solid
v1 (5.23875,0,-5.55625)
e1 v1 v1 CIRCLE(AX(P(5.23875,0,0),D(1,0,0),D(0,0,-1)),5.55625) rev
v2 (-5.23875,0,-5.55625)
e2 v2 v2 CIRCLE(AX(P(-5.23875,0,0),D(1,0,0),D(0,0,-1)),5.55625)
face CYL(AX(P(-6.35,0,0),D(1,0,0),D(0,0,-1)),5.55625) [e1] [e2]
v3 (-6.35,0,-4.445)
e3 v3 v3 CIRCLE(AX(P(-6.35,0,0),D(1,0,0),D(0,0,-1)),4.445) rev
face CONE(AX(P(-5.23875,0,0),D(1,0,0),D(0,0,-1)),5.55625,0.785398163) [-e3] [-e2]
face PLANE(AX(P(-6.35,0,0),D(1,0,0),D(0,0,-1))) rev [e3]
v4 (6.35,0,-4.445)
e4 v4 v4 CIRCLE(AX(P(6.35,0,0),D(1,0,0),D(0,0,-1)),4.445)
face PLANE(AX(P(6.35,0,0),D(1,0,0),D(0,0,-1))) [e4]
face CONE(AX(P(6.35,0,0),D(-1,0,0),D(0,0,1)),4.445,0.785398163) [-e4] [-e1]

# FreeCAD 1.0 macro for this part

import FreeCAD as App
import Part
import Sketcher

V = App.Vector
Q = App.Units.Quantity


def edges_at(feature, points):
    """Names of the edges that pass closest to the given points."""
    edges = feature.Shape.Edges
    near = lambda p: min(range(len(edges)), key=lambda i: edges[i].distToShape(Part.Vertex(*p))[0])
    return sorted({f"Edge{near(p) + 1}" for p in points})

doc = App.newDocument("Part")
body = doc.addObject("PartDesign::Body", "Body")

sketch1 = doc.addObject("Sketcher::SketchObject", "Sketch")
body.addObject(sketch1)
sketch1.AttachmentSupport = (doc.YZ_Plane, [""])
sketch1.MapMode = "FlatFace"
sketch1.addGeometry(Part.Circle(V(0, 0, 0), V(0, 0, 1), 6), False)
sketch1.addConstraint([
    Sketcher.Constraint("Coincident", 0, 3, -1, 1),
    Sketcher.Constraint("Diameter", 0, Q("0.4375 in")),
])
pad1 = doc.addObject("PartDesign::Pad", "Pad")
body.addObject(pad1)
pad1.Profile = sketch1
pad1.Type = "TwoLengths"
pad1.Length = Q("0.25 in")
pad1.Length2 = Q("0.25 in")
doc.recompute()

chamfer = doc.addObject("PartDesign::Chamfer", "Chamfer")
body.addObject(chamfer)
chamfer.Base = (pad1, edges_at(pad1, [(-6.35, 0, 5.556), (6.35, 0, 5.556)]))
chamfer.Size = 1.11125

doc.recompute()
